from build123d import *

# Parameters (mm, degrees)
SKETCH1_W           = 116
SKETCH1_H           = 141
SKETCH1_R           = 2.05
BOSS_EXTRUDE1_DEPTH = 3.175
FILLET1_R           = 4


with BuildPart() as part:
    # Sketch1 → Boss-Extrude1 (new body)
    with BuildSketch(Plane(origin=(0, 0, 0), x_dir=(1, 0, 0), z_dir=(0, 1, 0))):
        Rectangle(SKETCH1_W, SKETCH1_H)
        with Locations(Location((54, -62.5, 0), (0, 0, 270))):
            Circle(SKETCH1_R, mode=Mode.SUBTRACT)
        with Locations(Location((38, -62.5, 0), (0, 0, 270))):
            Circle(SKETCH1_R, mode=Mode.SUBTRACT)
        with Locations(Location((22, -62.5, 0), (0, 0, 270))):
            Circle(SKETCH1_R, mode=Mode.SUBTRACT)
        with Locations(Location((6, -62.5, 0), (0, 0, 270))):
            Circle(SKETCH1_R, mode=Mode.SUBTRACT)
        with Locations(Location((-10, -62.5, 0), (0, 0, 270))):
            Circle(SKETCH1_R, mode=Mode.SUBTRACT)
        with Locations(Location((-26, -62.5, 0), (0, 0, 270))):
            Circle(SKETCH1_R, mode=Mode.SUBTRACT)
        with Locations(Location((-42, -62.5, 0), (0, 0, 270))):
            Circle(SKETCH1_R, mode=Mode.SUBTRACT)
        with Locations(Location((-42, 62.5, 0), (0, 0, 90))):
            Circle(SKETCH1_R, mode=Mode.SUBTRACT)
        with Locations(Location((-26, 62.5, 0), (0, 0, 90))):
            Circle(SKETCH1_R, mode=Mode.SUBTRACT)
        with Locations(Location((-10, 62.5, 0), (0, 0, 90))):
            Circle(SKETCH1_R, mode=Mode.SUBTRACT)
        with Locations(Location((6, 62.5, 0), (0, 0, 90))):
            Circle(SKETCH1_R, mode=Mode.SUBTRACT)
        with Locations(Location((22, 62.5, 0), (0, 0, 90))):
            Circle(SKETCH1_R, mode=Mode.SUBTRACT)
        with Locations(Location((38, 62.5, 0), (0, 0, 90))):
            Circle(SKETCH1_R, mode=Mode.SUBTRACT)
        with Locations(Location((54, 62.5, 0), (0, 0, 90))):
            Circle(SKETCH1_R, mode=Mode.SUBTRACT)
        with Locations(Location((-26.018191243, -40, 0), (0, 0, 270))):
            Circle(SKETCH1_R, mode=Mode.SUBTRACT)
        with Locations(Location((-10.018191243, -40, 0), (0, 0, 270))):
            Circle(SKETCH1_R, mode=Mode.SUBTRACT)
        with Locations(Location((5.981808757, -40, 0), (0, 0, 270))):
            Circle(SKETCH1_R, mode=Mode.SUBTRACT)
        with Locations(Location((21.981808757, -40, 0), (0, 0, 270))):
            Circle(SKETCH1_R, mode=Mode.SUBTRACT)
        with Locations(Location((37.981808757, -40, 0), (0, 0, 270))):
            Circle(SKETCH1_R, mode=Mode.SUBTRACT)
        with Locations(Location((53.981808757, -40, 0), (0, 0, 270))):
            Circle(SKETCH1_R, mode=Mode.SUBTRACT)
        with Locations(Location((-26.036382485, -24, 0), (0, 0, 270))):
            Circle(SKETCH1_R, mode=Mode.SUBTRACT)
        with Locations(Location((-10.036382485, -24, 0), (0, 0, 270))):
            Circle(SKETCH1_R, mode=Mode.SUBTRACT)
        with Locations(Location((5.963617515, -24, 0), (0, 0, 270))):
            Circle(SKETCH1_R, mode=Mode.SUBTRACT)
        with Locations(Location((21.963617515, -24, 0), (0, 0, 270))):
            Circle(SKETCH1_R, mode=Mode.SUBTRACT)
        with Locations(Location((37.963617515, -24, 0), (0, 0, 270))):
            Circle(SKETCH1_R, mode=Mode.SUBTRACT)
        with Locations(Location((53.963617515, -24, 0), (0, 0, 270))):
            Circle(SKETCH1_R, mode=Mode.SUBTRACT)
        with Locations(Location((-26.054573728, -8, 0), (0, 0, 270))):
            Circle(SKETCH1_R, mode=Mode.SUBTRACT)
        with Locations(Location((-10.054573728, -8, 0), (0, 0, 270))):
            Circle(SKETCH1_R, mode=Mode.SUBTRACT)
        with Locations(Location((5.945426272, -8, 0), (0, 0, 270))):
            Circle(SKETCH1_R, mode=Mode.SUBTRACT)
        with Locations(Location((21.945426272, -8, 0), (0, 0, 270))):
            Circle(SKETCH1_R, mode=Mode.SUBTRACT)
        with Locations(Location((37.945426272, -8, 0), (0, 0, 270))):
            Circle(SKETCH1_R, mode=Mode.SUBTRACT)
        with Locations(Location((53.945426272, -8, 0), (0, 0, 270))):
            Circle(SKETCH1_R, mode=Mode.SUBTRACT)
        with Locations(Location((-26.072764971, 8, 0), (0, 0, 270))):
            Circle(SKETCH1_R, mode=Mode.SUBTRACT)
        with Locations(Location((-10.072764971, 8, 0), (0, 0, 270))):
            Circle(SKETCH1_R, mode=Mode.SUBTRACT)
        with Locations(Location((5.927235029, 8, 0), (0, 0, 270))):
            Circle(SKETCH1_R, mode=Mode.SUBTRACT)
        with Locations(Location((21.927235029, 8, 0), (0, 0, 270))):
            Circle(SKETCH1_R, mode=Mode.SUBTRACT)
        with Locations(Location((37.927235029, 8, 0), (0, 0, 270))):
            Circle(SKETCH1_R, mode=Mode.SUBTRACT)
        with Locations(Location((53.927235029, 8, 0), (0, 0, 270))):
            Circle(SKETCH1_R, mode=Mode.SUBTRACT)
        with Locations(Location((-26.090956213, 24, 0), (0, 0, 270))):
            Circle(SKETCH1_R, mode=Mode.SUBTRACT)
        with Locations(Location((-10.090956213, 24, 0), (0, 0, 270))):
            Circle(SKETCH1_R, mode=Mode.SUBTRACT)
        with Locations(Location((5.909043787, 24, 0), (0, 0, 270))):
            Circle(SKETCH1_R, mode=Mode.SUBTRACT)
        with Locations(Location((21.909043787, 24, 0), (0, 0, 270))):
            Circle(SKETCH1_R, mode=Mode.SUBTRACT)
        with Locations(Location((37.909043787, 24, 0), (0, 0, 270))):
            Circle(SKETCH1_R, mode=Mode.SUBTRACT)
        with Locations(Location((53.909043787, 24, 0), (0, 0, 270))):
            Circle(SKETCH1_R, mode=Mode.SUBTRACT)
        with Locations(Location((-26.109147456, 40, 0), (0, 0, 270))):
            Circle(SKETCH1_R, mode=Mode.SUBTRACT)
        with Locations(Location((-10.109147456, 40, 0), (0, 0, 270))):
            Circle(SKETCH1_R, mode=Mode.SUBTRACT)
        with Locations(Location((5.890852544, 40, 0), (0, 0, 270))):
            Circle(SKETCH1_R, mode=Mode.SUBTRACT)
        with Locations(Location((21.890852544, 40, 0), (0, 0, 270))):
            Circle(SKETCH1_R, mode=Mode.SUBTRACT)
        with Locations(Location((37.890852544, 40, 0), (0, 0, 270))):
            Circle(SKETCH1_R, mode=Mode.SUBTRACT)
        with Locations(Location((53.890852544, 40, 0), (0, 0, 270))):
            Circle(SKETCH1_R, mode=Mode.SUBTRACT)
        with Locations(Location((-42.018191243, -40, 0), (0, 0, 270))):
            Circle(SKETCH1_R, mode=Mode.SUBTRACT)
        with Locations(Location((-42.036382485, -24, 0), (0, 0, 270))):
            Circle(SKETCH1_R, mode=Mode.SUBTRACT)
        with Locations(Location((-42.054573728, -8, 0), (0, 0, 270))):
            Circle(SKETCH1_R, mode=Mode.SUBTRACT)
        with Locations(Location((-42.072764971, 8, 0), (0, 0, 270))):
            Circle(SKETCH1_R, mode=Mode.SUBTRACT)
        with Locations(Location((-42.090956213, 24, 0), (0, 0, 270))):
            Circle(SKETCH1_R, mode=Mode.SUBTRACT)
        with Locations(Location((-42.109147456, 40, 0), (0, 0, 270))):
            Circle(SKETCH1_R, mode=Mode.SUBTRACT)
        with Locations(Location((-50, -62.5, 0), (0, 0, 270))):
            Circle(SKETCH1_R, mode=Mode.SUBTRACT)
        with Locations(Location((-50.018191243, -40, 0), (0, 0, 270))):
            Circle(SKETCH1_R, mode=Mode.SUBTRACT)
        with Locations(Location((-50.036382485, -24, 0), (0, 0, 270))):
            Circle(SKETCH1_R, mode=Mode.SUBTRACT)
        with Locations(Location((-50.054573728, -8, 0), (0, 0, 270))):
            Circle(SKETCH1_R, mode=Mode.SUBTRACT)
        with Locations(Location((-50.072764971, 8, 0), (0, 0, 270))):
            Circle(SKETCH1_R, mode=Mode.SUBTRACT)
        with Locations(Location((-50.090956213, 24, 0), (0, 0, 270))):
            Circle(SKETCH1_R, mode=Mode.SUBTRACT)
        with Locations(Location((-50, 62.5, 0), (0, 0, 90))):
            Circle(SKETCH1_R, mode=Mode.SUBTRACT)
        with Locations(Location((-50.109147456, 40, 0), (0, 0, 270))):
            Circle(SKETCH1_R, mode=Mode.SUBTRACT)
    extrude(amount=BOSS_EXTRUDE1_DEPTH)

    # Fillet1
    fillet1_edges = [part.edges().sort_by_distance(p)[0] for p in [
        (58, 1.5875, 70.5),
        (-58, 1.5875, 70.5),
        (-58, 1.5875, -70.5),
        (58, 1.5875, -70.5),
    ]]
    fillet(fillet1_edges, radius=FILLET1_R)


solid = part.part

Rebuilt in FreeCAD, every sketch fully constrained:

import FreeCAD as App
import Part
import Sketcher
from FreeCAD import Vector
Q = App.Units.Quantity


def edges_at(feature, points):
    """Names of the edges that pass closest to the given points."""
    edges = feature.Shape.Edges
    near = lambda p: min(range(len(edges)), key=lambda i: edges[i].distToShape(Part.Vertex(*p))[0])
    return sorted({f"Edge{near(p) + 1}" for p in points})

doc = App.newDocument("Part")
body = doc.addObject("PartDesign::Body", "Body")

# Sketch on XZ plane
sketch1 = body.newObject("Sketcher::SketchObject", "Sketch")
sketch1.AttachmentSupport = (doc.getObject("XZ_Plane"), [""])
sketch1.MapMode = "FlatFace"
sketch1.addGeometry([
    Part.LineSegment(Vector(-58, -70.5, 0), Vector(-58, 70.5, 0)),  # 0
    Part.LineSegment(Vector(-58, 70.5, 0), Vector(58, 70.5, 0)),  # 1
    Part.LineSegment(Vector(58, 70.5, 0), Vector(58, -70.5, 0)),  # 2
    Part.LineSegment(Vector(58, -70.5, 0), Vector(-58, -70.5, 0)),  # 3
    Part.Circle(Vector(-50, 62.5, 0), Vector(0, 0, 1), 2),  # 4
    Part.Circle(Vector(-42, 62.5, 0), Vector(0, 0, 1), 2),  # 5
    Part.Circle(Vector(-26, 62.5, 0), Vector(0, 0, 1), 2),  # 6
    Part.Circle(Vector(-50, 40, 0), Vector(0, 0, 1), 2),  # 7
    Part.Circle(Vector(-42, 40, 0), Vector(0, 0, 1), 2),  # 8
    Part.Circle(Vector(-26, 40, 0), Vector(0, 0, 1), 2),  # 9
    Part.Circle(Vector(-10, 62.5, 0), Vector(0, 0, 1), 2),  # 10
    Part.Circle(Vector(-10, 40, 0), Vector(0, 0, 1), 2),  # 11
    Part.Circle(Vector(-50, 24, 0), Vector(0, 0, 1), 2),  # 12
    Part.Circle(Vector(-42, 24, 0), Vector(0, 0, 1), 2),  # 13
    Part.Circle(Vector(-26, 24, 0), Vector(0, 0, 1), 2),  # 14
    Part.Circle(Vector(-50.1, 8, 0), Vector(0, 0, 1), 2),  # 15
    Part.Circle(Vector(-42.1, 8, 0), Vector(0, 0, 1), 2),  # 16
    Part.Circle(Vector(-26.1, 8, 0), Vector(0, 0, 1), 2),  # 17
    Part.Circle(Vector(-10, 24, 0), Vector(0, 0, 1), 2),  # 18
    Part.Circle(Vector(-10.1, 8, 0), Vector(0, 0, 1), 2),  # 19
    Part.Circle(Vector(6, 62.5, 0), Vector(0, 0, 1), 2),  # 20
    Part.Circle(Vector(22, 62.5, 0), Vector(0, 0, 1), 2),  # 21
    Part.Circle(Vector(6, 40, 0), Vector(0, 0, 1), 2),  # 22
    Part.Circle(Vector(22, 40, 0), Vector(0, 0, 1), 2),  # 23
    Part.Circle(Vector(38, 62.5, 0), Vector(0, 0, 1), 2),  # 24
    Part.Circle(Vector(54, 62.5, 0), Vector(0, 0, 1), 2),  # 25
    Part.Circle(Vector(38, 40, 0), Vector(0, 0, 1), 2),  # 26
    Part.Circle(Vector(54, 40, 0), Vector(0, 0, 1), 2),  # 27
    Part.Circle(Vector(6, 24, 0), Vector(0, 0, 1), 2),  # 28
    Part.Circle(Vector(22, 24, 0), Vector(0, 0, 1), 2),  # 29
    Part.Circle(Vector(5.9, 8, 0), Vector(0, 0, 1), 2),  # 30
    Part.Circle(Vector(21.9, 8, 0), Vector(0, 0, 1), 2),  # 31
    Part.Circle(Vector(38, 24, 0), Vector(0, 0, 1), 2),  # 32
    Part.Circle(Vector(54, 24, 0), Vector(0, 0, 1), 2),  # 33
    Part.Circle(Vector(37.9, 8, 0), Vector(0, 0, 1), 2),  # 34
    Part.Circle(Vector(53.9, 8, 0), Vector(0, 0, 1), 2),  # 35
    Part.Circle(Vector(-50.1, -8, 0), Vector(0, 0, 1), 2),  # 36
    Part.Circle(Vector(-42.1, -8, 0), Vector(0, 0, 1), 2),  # 37
    Part.Circle(Vector(-26.1, -8, 0), Vector(0, 0, 1), 2),  # 38
    Part.Circle(Vector(-50.1, -24, 0), Vector(0, 0, 1), 2),  # 39
    Part.Circle(Vector(-42.1, -24, 0), Vector(0, 0, 1), 2),  # 40
    Part.Circle(Vector(-26.1, -24, 0), Vector(0, 0, 1), 2),  # 41
    Part.Circle(Vector(-10.1, -8, 0), Vector(0, 0, 1), 2),  # 42
    Part.Circle(Vector(-10.1, -24, 0), Vector(0, 0, 1), 2),  # 43
    Part.Circle(Vector(-50.1, -40, 0), Vector(0, 0, 1), 2),  # 44
    Part.Circle(Vector(-42.1, -40, 0), Vector(0, 0, 1), 2),  # 45
    Part.Circle(Vector(-26.1, -40, 0), Vector(0, 0, 1), 2),  # 46
    Part.Circle(Vector(-50, -62.5, 0), Vector(0, 0, 1), 2),  # 47
    Part.Circle(Vector(-42, -62.5, 0), Vector(0, 0, 1), 2),  # 48
    Part.Circle(Vector(-26, -62.5, 0), Vector(0, 0, 1), 2),  # 49
    Part.Circle(Vector(-10.1, -40, 0), Vector(0, 0, 1), 2),  # 50
    Part.Circle(Vector(-10, -62.5, 0), Vector(0, 0, 1), 2),  # 51
    Part.Circle(Vector(5.9, -8, 0), Vector(0, 0, 1), 2),  # 52
    Part.Circle(Vector(21.9, -8, 0), Vector(0, 0, 1), 2),  # 53
    Part.Circle(Vector(5.9, -24, 0), Vector(0, 0, 1), 2),  # 54
    Part.Circle(Vector(21.9, -24, 0), Vector(0, 0, 1), 2),  # 55
    Part.Circle(Vector(37.9, -8, 0), Vector(0, 0, 1), 2),  # 56
    Part.Circle(Vector(53.9, -8, 0), Vector(0, 0, 1), 2),  # 57
    Part.Circle(Vector(37.9, -24, 0), Vector(0, 0, 1), 2),  # 58
    Part.Circle(Vector(53.9, -24, 0), Vector(0, 0, 1), 2),  # 59
    Part.Circle(Vector(5.9, -40, 0), Vector(0, 0, 1), 2),  # 60
    Part.Circle(Vector(21.9, -40, 0), Vector(0, 0, 1), 2),  # 61
    Part.Circle(Vector(6, -62.5, 0), Vector(0, 0, 1), 2),  # 62
    Part.Circle(Vector(22, -62.5, 0), Vector(0, 0, 1), 2),  # 63
    Part.Circle(Vector(37.9, -40, 0), Vector(0, 0, 1), 2),  # 64
    Part.Circle(Vector(53.9, -40, 0), Vector(0, 0, 1), 2),  # 65
    Part.Circle(Vector(38, -62.5, 0), Vector(0, 0, 1), 2),  # 66
    Part.Circle(Vector(54, -62.5, 0), Vector(0, 0, 1), 2),  # 67
], False)
sketch1.addConstraint([
    Sketcher.Constraint("Coincident", 0, 2, 1, 1),
    Sketcher.Constraint("Coincident", 1, 2, 2, 1),
    Sketcher.Constraint("Coincident", 2, 2, 3, 1),
    Sketcher.Constraint("Coincident", 3, 2, 0, 1),
    Sketcher.Constraint("Vertical", 0),
    Sketcher.Constraint("Horizontal", 1),
    Sketcher.Constraint("Vertical", 2),
    Sketcher.Constraint("Horizontal", 3),
    Sketcher.Constraint("Equal", 4, 5),
    Sketcher.Constraint("Equal", 5, 6),
    Sketcher.Constraint("Equal", 6, 7),
    Sketcher.Constraint("Equal", 7, 8),
    Sketcher.Constraint("Equal", 8, 9),
    Sketcher.Constraint("Equal", 9, 10),
    Sketcher.Constraint("Equal", 10, 11),
    Sketcher.Constraint("Equal", 11, 12),
    Sketcher.Constraint("Equal", 12, 13),
    Sketcher.Constraint("Equal", 13, 14),
    Sketcher.Constraint("Equal", 14, 15),
    Sketcher.Constraint("Equal", 15, 16),
    Sketcher.Constraint("Equal", 16, 17),
    Sketcher.Constraint("Equal", 17, 18),
    Sketcher.Constraint("Equal", 18, 19),
    Sketcher.Constraint("Equal", 19, 20),
    Sketcher.Constraint("Equal", 20, 21),
    Sketcher.Constraint("Equal", 21, 22),
    Sketcher.Constraint("Equal", 22, 23),
    Sketcher.Constraint("Equal", 23, 24),
    Sketcher.Constraint("Equal", 24, 25),
    Sketcher.Constraint("Equal", 25, 26),
    Sketcher.Constraint("Equal", 26, 27),
    Sketcher.Constraint("Equal", 27, 28),
    Sketcher.Constraint("Equal", 28, 29),
    Sketcher.Constraint("Equal", 29, 30),
    Sketcher.Constraint("Equal", 30, 31),
    Sketcher.Constraint("Equal", 31, 32),
    Sketcher.Constraint("Equal", 32, 33),
    Sketcher.Constraint("Equal", 33, 34),
    Sketcher.Constraint("Equal", 34, 35),
    Sketcher.Constraint("Equal", 35, 36),
    Sketcher.Constraint("Equal", 36, 37),
    Sketcher.Constraint("Equal", 37, 38),
    Sketcher.Constraint("Equal", 38, 39),
    Sketcher.Constraint("Equal", 39, 40),
    Sketcher.Constraint("Equal", 40, 41),
    Sketcher.Constraint("Equal", 41, 42),
    Sketcher.Constraint("Equal", 42, 43),
    Sketcher.Constraint("Equal", 43, 44),
    Sketcher.Constraint("Equal", 44, 45),
    Sketcher.Constraint("Equal", 45, 46),
    Sketcher.Constraint("Equal", 46, 47),
    Sketcher.Constraint("Equal", 47, 48),
    Sketcher.Constraint("Equal", 48, 49),
    Sketcher.Constraint("Equal", 49, 50),
    Sketcher.Constraint("Equal", 50, 51),
    Sketcher.Constraint("Equal", 51, 52),
    Sketcher.Constraint("Equal", 52, 53),
    Sketcher.Constraint("Equal", 53, 54),
    Sketcher.Constraint("Equal", 54, 55),
    Sketcher.Constraint("Equal", 55, 56),
    Sketcher.Constraint("Equal", 56, 57),
    Sketcher.Constraint("Equal", 57, 58),
    Sketcher.Constraint("Equal", 58, 59),
    Sketcher.Constraint("Equal", 59, 60),
    Sketcher.Constraint("Equal", 60, 61),
    Sketcher.Constraint("Equal", 61, 62),
    Sketcher.Constraint("Equal", 62, 63),
    Sketcher.Constraint("Equal", 63, 64),
    Sketcher.Constraint("Equal", 64, 65),
    Sketcher.Constraint("Equal", 65, 66),
    Sketcher.Constraint("Equal", 66, 67),
    Sketcher.Constraint("Symmetric", 0, 2, 2, 2, -1, 1),
    Sketcher.Constraint("Symmetric", 4, 3, 47, 3, -1),
    Sketcher.Constraint("Symmetric", 5, 3, 48, 3, -1),
    Sketcher.Constraint("Symmetric", 6, 3, 49, 3, -1),
    Sketcher.Constraint("Symmetric", 10, 3, 51, 3, -1),
    Sketcher.Constraint("Symmetric", 20, 3, 62, 3, -1),
    Sketcher.Constraint("Symmetric", 21, 3, 63, 3, -1),
    Sketcher.Constraint("Symmetric", 24, 3, 66, 3, -1),
    Sketcher.Constraint("Symmetric", 25, 3, 67, 3, -1),
    Sketcher.Constraint("Horizontal", 4, 3, 5, 3),
    Sketcher.Constraint("Horizontal", 5, 3, 6, 3),
    Sketcher.Constraint("Horizontal", 7, 3, 8, 3),
    Sketcher.Constraint("Horizontal", 8, 3, 9, 3),
    Sketcher.Constraint("Horizontal", 6, 3, 10, 3),
    Sketcher.Constraint("Horizontal", 9, 3, 11, 3),
    Sketcher.Constraint("Horizontal", 12, 3, 13, 3),
    Sketcher.Constraint("Horizontal", 13, 3, 14, 3),
    Sketcher.Constraint("Horizontal", 15, 3, 16, 3),
    Sketcher.Constraint("Horizontal", 16, 3, 17, 3),
    Sketcher.Constraint("Horizontal", 14, 3, 18, 3),
    Sketcher.Constraint("Horizontal", 17, 3, 19, 3),
    Sketcher.Constraint("Horizontal", 10, 3, 20, 3),
    Sketcher.Constraint("Horizontal", 20, 3, 21, 3),
    Sketcher.Constraint("Horizontal", 11, 3, 22, 3),
    Sketcher.Constraint("Horizontal", 22, 3, 23, 3),
    Sketcher.Constraint("Horizontal", 21, 3, 24, 3),
    Sketcher.Constraint("Horizontal", 24, 3, 25, 3),
    Sketcher.Constraint("Horizontal", 23, 3, 26, 3),
    Sketcher.Constraint("Horizontal", 26, 3, 27, 3),
    Sketcher.Constraint("Horizontal", 18, 3, 28, 3),
    Sketcher.Constraint("Horizontal", 28, 3, 29, 3),
    Sketcher.Constraint("Horizontal", 19, 3, 30, 3),
    Sketcher.Constraint("Horizontal", 30, 3, 31, 3),
    Sketcher.Constraint("Horizontal", 29, 3, 32, 3),
    Sketcher.Constraint("Horizontal", 32, 3, 33, 3),
    Sketcher.Constraint("Horizontal", 31, 3, 34, 3),
    Sketcher.Constraint("Horizontal", 34, 3, 35, 3),
    Sketcher.Constraint("Horizontal", 36, 3, 37, 3),
    Sketcher.Constraint("Horizontal", 37, 3, 38, 3),
    Sketcher.Constraint("Horizontal", 39, 3, 40, 3),
    Sketcher.Constraint("Horizontal", 40, 3, 41, 3),
    Sketcher.Constraint("Horizontal", 38, 3, 42, 3),
    Sketcher.Constraint("Horizontal", 41, 3, 43, 3),
    Sketcher.Constraint("Horizontal", 44, 3, 45, 3),
    Sketcher.Constraint("Horizontal", 45, 3, 46, 3),
    Sketcher.Constraint("Horizontal", 46, 3, 50, 3),
    Sketcher.Constraint("Horizontal", 42, 3, 52, 3),
    Sketcher.Constraint("Horizontal", 52, 3, 53, 3),
    Sketcher.Constraint("Horizontal", 43, 3, 54, 3),
    Sketcher.Constraint("Horizontal", 54, 3, 55, 3),
    Sketcher.Constraint("Horizontal", 53, 3, 56, 3),
    Sketcher.Constraint("Horizontal", 56, 3, 57, 3),
    Sketcher.Constraint("Horizontal", 55, 3, 58, 3),
    Sketcher.Constraint("Horizontal", 58, 3, 59, 3),
    Sketcher.Constraint("Horizontal", 50, 3, 60, 3),
    Sketcher.Constraint("Horizontal", 60, 3, 61, 3),
    Sketcher.Constraint("Horizontal", 61, 3, 64, 3),
    Sketcher.Constraint("Horizontal", 64, 3, 65, 3),
    Sketcher.Constraint("Diameter", 4, Q("4.1 mm")),
    Sketcher.Constraint("DistanceX", 1, 1, 1, 2, Q("116 mm")),
    Sketcher.Constraint("DistanceY", 0, 1, 0, 2, Q("141 mm")),
    Sketcher.Constraint("DistanceX", 4, 3, -1, 1, Q("50 mm")),
    Sketcher.Constraint("DistanceX", 5, 3, -1, 1, Q("42 mm")),
    Sketcher.Constraint("DistanceX", 6, 3, -1, 1, Q("26 mm")),
    Sketcher.Constraint("DistanceY", -1, 1, 7, 3, Q("40 mm")),
    Sketcher.Constraint("DistanceX", 10, 3, -1, 1, Q("10 mm")),
    Sketcher.Constraint("DistanceY", -1, 1, 12, 3, Q("24 mm")),
    Sketcher.Constraint("DistanceY", -1, 1, 15, 3, Q("8 mm")),
    Sketcher.Constraint("DistanceX", -1, 1, 20, 3, Q("6 mm")),
    Sketcher.Constraint("DistanceX", -1, 1, 21, 3, Q("22 mm")),
    Sketcher.Constraint("DistanceX", -1, 1, 24, 3, Q("38 mm")),
    Sketcher.Constraint("DistanceX", -1, 1, 25, 3, Q("54 mm")),
    Sketcher.Constraint("DistanceY", 36, 3, -1, 1, Q("8 mm")),
    Sketcher.Constraint("DistanceY", 39, 3, -1, 1, Q("24 mm")),
    Sketcher.Constraint("DistanceY", 44, 3, -1, 1, Q("40 mm")),
    Sketcher.Constraint("DistanceY", -1, 1, 4, 3, Q("62.5 mm")),
    Sketcher.Constraint("DistanceX", 7, 3, -1, 1, Q("50.018191 mm")),
    Sketcher.Constraint("DistanceX", 8, 3, -1, 1, Q("42.018191 mm")),
    Sketcher.Constraint("DistanceX", 9, 3, -1, 1, Q("26.018191 mm")),
    Sketcher.Constraint("DistanceX", 11, 3, -1, 1, Q("10.018191 mm")),
    Sketcher.Constraint("DistanceX", -1, 1, 22, 3, Q("5.981809 mm")),
    Sketcher.Constraint("DistanceX", -1, 1, 23, 3, Q("21.981809 mm")),
    Sketcher.Constraint("DistanceX", -1, 1, 26, 3, Q("37.981809 mm")),
    Sketcher.Constraint("DistanceX", -1, 1, 27, 3, Q("53.981809 mm")),
    Sketcher.Constraint("DistanceX", 12, 3, -1, 1, Q("50.036382 mm")),
    Sketcher.Constraint("DistanceX", 13, 3, -1, 1, Q("42.036382 mm")),
    Sketcher.Constraint("DistanceX", 14, 3, -1, 1, Q("26.036382 mm")),
    Sketcher.Constraint("DistanceX", 15, 3, -1, 1, Q("50.054574 mm")),
    Sketcher.Constraint("DistanceX", 16, 3, -1, 1, Q("42.054574 mm")),
    Sketcher.Constraint("DistanceX", 17, 3, -1, 1, Q("26.054574 mm")),
    Sketcher.Constraint("DistanceX", 18, 3, -1, 1, Q("10.036382 mm")),
    Sketcher.Constraint("DistanceX", 19, 3, -1, 1, Q("10.054574 mm")),
    Sketcher.Constraint("DistanceX", -1, 1, 28, 3, Q("5.963618 mm")),
    Sketcher.Constraint("DistanceX", -1, 1, 29, 3, Q("21.963618 mm")),
    Sketcher.Constraint("DistanceX", -1, 1, 30, 3, Q("5.945426 mm")),
    Sketcher.Constraint("DistanceX", -1, 1, 31, 3, Q("21.945426 mm")),
    Sketcher.Constraint("DistanceX", -1, 1, 32, 3, Q("37.963618 mm")),
    Sketcher.Constraint("DistanceX", -1, 1, 33, 3, Q("53.963618 mm")),
    Sketcher.Constraint("DistanceX", -1, 1, 34, 3, Q("37.945426 mm")),
    Sketcher.Constraint("DistanceX", -1, 1, 35, 3, Q("53.945426 mm")),
    Sketcher.Constraint("DistanceX", 36, 3, -1, 1, Q("50.072765 mm")),
    Sketcher.Constraint("DistanceX", 37, 3, -1, 1, Q("42.072765 mm")),
    Sketcher.Constraint("DistanceX", 38, 3, -1, 1, Q("26.072765 mm")),
    Sketcher.Constraint("DistanceX", 39, 3, -1, 1, Q("50.090956 mm")),
    Sketcher.Constraint("DistanceX", 40, 3, -1, 1, Q("42.090956 mm")),
    Sketcher.Constraint("DistanceX", 41, 3, -1, 1, Q("26.090956 mm")),
    Sketcher.Constraint("DistanceX", 42, 3, -1, 1, Q("10.072765 mm")),
    Sketcher.Constraint("DistanceX", 43, 3, -1, 1, Q("10.090956 mm")),
    Sketcher.Constraint("DistanceX", 44, 3, -1, 1, Q("50.109147 mm")),
    Sketcher.Constraint("DistanceX", 45, 3, -1, 1, Q("42.109147 mm")),
    Sketcher.Constraint("DistanceX", 46, 3, -1, 1, Q("26.109147 mm")),
    Sketcher.Constraint("DistanceX", 50, 3, -1, 1, Q("10.109147 mm")),
    Sketcher.Constraint("DistanceX", -1, 1, 52, 3, Q("5.927235 mm")),
    Sketcher.Constraint("DistanceX", -1, 1, 53, 3, Q("21.927235 mm")),
    Sketcher.Constraint("DistanceX", -1, 1, 54, 3, Q("5.909044 mm")),
    Sketcher.Constraint("DistanceX", -1, 1, 55, 3, Q("21.909044 mm")),
    Sketcher.Constraint("DistanceX", -1, 1, 56, 3, Q("37.927235 mm")),
    Sketcher.Constraint("DistanceX", -1, 1, 57, 3, Q("53.927235 mm")),
    Sketcher.Constraint("DistanceX", -1, 1, 58, 3, Q("37.909044 mm")),
    Sketcher.Constraint("DistanceX", -1, 1, 59, 3, Q("53.909044 mm")),
    Sketcher.Constraint("DistanceX", -1, 1, 60, 3, Q("5.890853 mm")),
    Sketcher.Constraint("DistanceX", -1, 1, 61, 3, Q("21.890853 mm")),
    Sketcher.Constraint("DistanceX", -1, 1, 64, 3, Q("37.890853 mm")),
    Sketcher.Constraint("DistanceX", -1, 1, 65, 3, Q("53.890853 mm")),
])
pad1 = body.newObject("PartDesign::Pad", "Pad")
pad1.Profile = sketch1
pad1.Length = 3.175
pad1.Reversed = True
doc.recompute()

fillet = body.newObject("PartDesign::Fillet", "Fillet")
fillet.Base = (pad1, edges_at(pad1, [
    (58, 1.587, 70.5),
    (-58, 1.587, 70.5),
    (-58, 1.587, -70.5),
    (58, 1.587, -70.5),
]))
fillet.Radius = 4

doc.recompute()
